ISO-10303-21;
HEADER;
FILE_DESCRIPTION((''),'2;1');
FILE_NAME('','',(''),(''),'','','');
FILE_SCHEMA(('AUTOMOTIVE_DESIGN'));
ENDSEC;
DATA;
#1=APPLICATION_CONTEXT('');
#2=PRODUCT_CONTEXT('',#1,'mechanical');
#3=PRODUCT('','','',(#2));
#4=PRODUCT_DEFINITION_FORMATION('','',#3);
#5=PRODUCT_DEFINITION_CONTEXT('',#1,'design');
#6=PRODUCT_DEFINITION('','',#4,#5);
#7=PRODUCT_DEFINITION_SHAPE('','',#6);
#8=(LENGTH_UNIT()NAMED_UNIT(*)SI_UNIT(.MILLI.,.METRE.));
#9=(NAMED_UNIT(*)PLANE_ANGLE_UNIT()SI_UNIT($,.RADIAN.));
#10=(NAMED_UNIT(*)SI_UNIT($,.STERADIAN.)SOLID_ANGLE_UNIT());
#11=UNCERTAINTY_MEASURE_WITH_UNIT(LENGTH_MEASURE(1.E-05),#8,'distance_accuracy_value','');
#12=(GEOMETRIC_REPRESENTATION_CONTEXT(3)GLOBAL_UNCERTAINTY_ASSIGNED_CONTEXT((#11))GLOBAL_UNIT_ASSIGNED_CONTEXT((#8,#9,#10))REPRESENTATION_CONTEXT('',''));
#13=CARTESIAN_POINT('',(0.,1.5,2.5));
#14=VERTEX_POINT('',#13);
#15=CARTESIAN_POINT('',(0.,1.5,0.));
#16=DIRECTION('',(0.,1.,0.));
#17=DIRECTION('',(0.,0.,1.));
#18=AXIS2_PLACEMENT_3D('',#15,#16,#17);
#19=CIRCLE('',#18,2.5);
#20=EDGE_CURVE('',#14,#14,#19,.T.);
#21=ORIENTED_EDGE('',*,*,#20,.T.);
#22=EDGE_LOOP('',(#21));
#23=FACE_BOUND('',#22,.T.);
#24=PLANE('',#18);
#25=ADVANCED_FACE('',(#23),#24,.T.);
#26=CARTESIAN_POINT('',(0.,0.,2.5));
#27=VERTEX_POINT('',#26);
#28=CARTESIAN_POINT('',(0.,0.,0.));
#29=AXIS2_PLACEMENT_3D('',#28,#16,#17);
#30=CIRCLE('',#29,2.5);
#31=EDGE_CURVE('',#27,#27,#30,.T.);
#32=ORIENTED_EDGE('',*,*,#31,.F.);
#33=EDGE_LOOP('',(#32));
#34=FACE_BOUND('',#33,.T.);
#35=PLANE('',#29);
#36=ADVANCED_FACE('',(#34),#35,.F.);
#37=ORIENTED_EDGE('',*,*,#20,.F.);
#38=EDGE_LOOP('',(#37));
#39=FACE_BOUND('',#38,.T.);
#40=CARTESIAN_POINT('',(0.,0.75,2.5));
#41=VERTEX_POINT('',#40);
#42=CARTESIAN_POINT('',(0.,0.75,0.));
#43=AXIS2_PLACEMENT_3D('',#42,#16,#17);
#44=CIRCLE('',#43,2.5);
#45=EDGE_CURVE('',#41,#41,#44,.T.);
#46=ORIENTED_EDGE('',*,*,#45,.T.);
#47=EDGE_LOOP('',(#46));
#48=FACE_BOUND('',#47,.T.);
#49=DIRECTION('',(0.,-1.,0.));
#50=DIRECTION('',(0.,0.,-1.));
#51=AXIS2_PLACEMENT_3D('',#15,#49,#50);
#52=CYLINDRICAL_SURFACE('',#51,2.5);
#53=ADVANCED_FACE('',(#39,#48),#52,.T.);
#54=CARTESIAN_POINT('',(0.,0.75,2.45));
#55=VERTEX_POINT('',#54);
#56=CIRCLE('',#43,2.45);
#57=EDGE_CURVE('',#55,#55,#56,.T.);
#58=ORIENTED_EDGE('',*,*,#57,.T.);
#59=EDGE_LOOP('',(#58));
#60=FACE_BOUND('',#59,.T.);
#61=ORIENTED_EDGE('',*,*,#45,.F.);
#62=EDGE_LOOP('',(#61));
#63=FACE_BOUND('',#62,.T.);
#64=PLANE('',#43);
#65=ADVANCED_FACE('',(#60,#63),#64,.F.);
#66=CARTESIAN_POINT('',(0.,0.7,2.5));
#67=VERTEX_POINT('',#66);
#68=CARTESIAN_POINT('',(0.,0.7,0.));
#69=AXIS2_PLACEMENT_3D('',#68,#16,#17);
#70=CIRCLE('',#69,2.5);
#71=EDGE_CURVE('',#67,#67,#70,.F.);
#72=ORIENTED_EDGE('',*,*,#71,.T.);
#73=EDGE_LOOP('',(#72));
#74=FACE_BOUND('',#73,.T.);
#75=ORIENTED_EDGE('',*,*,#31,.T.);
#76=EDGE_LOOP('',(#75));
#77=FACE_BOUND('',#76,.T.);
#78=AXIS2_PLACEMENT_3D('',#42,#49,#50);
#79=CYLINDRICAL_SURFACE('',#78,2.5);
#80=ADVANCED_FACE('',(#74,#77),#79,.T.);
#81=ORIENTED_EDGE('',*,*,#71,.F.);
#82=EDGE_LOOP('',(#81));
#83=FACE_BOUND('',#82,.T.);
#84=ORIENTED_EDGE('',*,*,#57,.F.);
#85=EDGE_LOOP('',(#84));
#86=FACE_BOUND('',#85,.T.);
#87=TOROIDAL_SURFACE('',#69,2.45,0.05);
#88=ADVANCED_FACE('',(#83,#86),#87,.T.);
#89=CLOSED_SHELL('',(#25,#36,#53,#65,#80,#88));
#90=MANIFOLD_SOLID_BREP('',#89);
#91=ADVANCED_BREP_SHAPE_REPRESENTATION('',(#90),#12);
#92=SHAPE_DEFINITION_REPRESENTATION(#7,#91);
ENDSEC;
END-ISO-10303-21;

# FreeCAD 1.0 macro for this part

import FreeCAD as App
import Part
import Sketcher

V = App.Vector
Q = App.Units.Quantity


def edges_at(feature, points):
    """Names of the edges that pass closest to the given points."""
    edges = feature.Shape.Edges
    near = lambda p: min(range(len(edges)), key=lambda i: edges[i].distToShape(Part.Vertex(*p))[0])
    return sorted({f"Edge{near(p) + 1}" for p in points})

doc = App.newDocument("Part")
body = doc.addObject("PartDesign::Body", "Body")

# Sketch on XZ plane
sketch1 = body.newObject("Sketcher::SketchObject", "Sketch")
sketch1.AttachmentSupport = (doc.getObject("XZ_Plane"), [""])
sketch1.MapMode = "FlatFace"
sketch1.addGeometry(Part.Circle(V(0, 0, 0), V(0, 0, 1), 2.5), False)
sketch1.addConstraint([
    Sketcher.Constraint("Coincident", 0, 3, -1, 1),
    Sketcher.Constraint("Diameter", 0, Q("5 mm")),
])
pad1 = body.newObject("PartDesign::Pad", "Pad")
pad1.Profile = sketch1
pad1.Length = 0.75
pad1.Reversed = True
doc.recompute()

fillet = body.newObject("PartDesign::Fillet", "Fillet")
fillet.Base = (pad1, edges_at(pad1, [(-2.5, 0.75, 0)]))
fillet.Radius = 0.05

# Sketch on XZ plane
sketch2 = body.newObject("Sketcher::SketchObject", "Sketch001")
sketch2.AttachmentSupport = (doc.getObject("XZ_Plane"), [""])
sketch2.MapMode = "FlatFace"
sketch2.AttachmentOffset = App.Placement(V(0, 0, -0.75), App.Rotation())
sketch2.addGeometry(Part.Circle(V(0, 0, 0), V(0, 0, 1), 2.5), False)
sketch2.addConstraint([
    Sketcher.Constraint("Coincident", 0, 3, -1, 1),
    Sketcher.Constraint("Diameter", 0, Q("5 mm")),
])
pad2 = body.newObject("PartDesign::Pad", "Pad001")
pad2.Profile = sketch2
pad2.Length = 0.75
pad2.Reversed = True

doc.recompute()
